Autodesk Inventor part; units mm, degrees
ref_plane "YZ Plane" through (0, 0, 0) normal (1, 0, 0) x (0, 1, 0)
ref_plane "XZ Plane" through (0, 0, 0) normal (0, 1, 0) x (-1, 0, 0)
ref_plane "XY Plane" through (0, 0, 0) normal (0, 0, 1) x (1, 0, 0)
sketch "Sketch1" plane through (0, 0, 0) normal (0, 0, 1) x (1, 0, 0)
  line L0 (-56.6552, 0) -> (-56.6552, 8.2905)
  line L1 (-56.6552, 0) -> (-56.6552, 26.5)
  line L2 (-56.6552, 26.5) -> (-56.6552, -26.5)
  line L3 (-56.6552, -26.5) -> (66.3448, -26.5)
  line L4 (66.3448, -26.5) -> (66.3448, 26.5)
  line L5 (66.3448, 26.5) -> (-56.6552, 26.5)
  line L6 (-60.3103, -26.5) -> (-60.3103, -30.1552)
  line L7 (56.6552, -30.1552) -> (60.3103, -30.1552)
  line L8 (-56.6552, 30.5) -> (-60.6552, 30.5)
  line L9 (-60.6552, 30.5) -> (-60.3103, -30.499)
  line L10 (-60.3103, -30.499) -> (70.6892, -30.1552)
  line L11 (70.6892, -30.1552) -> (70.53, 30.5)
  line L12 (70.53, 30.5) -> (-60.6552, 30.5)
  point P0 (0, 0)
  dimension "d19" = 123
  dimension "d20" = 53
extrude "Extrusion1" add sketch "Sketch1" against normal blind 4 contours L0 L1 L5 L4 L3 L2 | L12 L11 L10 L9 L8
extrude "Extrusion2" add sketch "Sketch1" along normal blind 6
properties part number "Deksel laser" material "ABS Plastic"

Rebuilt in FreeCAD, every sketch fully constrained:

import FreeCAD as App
import Part
import Sketcher
Q = App.Units.Quantity


def add_polygon(sketch, points):
    """Adds a closed chain of lines whose ends are joined by coincident constraints."""
    first, n = sketch.GeometryCount, len(points)
    for a, b in zip(points, points[1:] + points[:1]):
        sketch.addGeometry(Part.LineSegment(App.Vector(*a, 0), App.Vector(*b, 0)), False)
    for i in range(n):
        sketch.addConstraint(Sketcher.Constraint("Coincident", first + i, 2, first + (i + 1) % n, 1))

doc = App.newDocument("Part")
body = doc.addObject("PartDesign::Body", "Body")

# Sketch on XY plane
sketch1 = doc.addObject("Sketcher::SketchObject", "Sketch")
body.addObject(sketch1)
sketch1.AttachmentSupport = (doc.XY_Plane, [""])
sketch1.MapMode = "FlatFace"
add_polygon(sketch1, [(70.53, 30.5), (-60.6552, 30.5), (-60.3103, -30.499), (70.6892, -30.1552)])  # lines 0-3
sketch1.addConstraint(Sketcher.Constraint("Horizontal", 0))
sketch1.addConstraint(Sketcher.Constraint("Perpendicular", 2, 3))
sketch1.addConstraint(Sketcher.Constraint("Distance", 1, 61.0))
sketch1.addConstraint(Sketcher.Constraint("Distance", 2, 131.0))
sketch1.addConstraint(Sketcher.Constraint("DistanceY", -1, 1, 0, 2, 30.5))
sketch1.addConstraint(Sketcher.Constraint("Angle", 2, Q("0.1504 deg")))
sketch1.addConstraint(Sketcher.Constraint("DistanceX", -1, 1, 3, 2, 70.53))
sketch1.addConstraint(Sketcher.Constraint("DistanceX", 0, 2, 0, 1, 131.1852))
pad1 = doc.addObject("PartDesign::Pad", "Pad")
body.addObject(pad1)
pad1.Profile = sketch1
pad1.Length = 4
pad1.Reversed = True

# Sketch on XY plane
sketch2 = doc.addObject("Sketcher::SketchObject", "Sketch001")
body.addObject(sketch2)
sketch2.AttachmentSupport = (doc.XY_Plane, [""])
sketch2.MapMode = "FlatFace"
add_polygon(sketch2, [(70.53, 30.5), (-60.6552, 30.5), (-60.3103, -30.499), (70.6892, -30.1552)])  # lines 0-3
add_polygon(sketch2, [(-56.6552, -26.5), (-56.6552, 26.5), (66.3448, 26.5), (66.3448, -26.5)])  # lines 4-7
sketch2.addConstraint(Sketcher.Constraint("Horizontal", 0))
sketch2.addConstraint(Sketcher.Constraint("Vertical", 4))
sketch2.addConstraint(Sketcher.Constraint("Horizontal", 5))
sketch2.addConstraint(Sketcher.Constraint("Vertical", 6))
sketch2.addConstraint(Sketcher.Constraint("Horizontal", 7))
sketch2.addConstraint(Sketcher.Constraint("Perpendicular", 2, 3))
sketch2.addConstraint(Sketcher.Constraint("DistanceX", 5, 1, 5, 2, 123.0))
sketch2.addConstraint(Sketcher.Constraint("DistanceY", 4, 1, 4, 2, 53.0))
sketch2.addConstraint(Sketcher.Constraint("Distance", 1, 61.0))
sketch2.addConstraint(Sketcher.Constraint("Distance", 2, 131.0))
sketch2.addConstraint(Sketcher.Constraint("DistanceX", 0, 2, 4, 2, 4.0))
sketch2.addConstraint(Sketcher.Constraint("DistanceY", 4, 2, 0, 2, 4.0))
sketch2.addConstraint(Sketcher.Constraint("DistanceY", -1, 1, 0, 2, 30.5))
sketch2.addConstraint(Sketcher.Constraint("Angle", 2, Q("0.1504 deg")))
sketch2.addConstraint(Sketcher.Constraint("DistanceX", -1, 1, 3, 2, 70.53))
sketch2.addConstraint(Sketcher.Constraint("DistanceX", 0, 2, 0, 1, 131.1852))
pad2 = doc.addObject("PartDesign::Pad", "Pad001")
body.addObject(pad2)
pad2.Profile = sketch2
pad2.Length = 6

doc.recompute()
